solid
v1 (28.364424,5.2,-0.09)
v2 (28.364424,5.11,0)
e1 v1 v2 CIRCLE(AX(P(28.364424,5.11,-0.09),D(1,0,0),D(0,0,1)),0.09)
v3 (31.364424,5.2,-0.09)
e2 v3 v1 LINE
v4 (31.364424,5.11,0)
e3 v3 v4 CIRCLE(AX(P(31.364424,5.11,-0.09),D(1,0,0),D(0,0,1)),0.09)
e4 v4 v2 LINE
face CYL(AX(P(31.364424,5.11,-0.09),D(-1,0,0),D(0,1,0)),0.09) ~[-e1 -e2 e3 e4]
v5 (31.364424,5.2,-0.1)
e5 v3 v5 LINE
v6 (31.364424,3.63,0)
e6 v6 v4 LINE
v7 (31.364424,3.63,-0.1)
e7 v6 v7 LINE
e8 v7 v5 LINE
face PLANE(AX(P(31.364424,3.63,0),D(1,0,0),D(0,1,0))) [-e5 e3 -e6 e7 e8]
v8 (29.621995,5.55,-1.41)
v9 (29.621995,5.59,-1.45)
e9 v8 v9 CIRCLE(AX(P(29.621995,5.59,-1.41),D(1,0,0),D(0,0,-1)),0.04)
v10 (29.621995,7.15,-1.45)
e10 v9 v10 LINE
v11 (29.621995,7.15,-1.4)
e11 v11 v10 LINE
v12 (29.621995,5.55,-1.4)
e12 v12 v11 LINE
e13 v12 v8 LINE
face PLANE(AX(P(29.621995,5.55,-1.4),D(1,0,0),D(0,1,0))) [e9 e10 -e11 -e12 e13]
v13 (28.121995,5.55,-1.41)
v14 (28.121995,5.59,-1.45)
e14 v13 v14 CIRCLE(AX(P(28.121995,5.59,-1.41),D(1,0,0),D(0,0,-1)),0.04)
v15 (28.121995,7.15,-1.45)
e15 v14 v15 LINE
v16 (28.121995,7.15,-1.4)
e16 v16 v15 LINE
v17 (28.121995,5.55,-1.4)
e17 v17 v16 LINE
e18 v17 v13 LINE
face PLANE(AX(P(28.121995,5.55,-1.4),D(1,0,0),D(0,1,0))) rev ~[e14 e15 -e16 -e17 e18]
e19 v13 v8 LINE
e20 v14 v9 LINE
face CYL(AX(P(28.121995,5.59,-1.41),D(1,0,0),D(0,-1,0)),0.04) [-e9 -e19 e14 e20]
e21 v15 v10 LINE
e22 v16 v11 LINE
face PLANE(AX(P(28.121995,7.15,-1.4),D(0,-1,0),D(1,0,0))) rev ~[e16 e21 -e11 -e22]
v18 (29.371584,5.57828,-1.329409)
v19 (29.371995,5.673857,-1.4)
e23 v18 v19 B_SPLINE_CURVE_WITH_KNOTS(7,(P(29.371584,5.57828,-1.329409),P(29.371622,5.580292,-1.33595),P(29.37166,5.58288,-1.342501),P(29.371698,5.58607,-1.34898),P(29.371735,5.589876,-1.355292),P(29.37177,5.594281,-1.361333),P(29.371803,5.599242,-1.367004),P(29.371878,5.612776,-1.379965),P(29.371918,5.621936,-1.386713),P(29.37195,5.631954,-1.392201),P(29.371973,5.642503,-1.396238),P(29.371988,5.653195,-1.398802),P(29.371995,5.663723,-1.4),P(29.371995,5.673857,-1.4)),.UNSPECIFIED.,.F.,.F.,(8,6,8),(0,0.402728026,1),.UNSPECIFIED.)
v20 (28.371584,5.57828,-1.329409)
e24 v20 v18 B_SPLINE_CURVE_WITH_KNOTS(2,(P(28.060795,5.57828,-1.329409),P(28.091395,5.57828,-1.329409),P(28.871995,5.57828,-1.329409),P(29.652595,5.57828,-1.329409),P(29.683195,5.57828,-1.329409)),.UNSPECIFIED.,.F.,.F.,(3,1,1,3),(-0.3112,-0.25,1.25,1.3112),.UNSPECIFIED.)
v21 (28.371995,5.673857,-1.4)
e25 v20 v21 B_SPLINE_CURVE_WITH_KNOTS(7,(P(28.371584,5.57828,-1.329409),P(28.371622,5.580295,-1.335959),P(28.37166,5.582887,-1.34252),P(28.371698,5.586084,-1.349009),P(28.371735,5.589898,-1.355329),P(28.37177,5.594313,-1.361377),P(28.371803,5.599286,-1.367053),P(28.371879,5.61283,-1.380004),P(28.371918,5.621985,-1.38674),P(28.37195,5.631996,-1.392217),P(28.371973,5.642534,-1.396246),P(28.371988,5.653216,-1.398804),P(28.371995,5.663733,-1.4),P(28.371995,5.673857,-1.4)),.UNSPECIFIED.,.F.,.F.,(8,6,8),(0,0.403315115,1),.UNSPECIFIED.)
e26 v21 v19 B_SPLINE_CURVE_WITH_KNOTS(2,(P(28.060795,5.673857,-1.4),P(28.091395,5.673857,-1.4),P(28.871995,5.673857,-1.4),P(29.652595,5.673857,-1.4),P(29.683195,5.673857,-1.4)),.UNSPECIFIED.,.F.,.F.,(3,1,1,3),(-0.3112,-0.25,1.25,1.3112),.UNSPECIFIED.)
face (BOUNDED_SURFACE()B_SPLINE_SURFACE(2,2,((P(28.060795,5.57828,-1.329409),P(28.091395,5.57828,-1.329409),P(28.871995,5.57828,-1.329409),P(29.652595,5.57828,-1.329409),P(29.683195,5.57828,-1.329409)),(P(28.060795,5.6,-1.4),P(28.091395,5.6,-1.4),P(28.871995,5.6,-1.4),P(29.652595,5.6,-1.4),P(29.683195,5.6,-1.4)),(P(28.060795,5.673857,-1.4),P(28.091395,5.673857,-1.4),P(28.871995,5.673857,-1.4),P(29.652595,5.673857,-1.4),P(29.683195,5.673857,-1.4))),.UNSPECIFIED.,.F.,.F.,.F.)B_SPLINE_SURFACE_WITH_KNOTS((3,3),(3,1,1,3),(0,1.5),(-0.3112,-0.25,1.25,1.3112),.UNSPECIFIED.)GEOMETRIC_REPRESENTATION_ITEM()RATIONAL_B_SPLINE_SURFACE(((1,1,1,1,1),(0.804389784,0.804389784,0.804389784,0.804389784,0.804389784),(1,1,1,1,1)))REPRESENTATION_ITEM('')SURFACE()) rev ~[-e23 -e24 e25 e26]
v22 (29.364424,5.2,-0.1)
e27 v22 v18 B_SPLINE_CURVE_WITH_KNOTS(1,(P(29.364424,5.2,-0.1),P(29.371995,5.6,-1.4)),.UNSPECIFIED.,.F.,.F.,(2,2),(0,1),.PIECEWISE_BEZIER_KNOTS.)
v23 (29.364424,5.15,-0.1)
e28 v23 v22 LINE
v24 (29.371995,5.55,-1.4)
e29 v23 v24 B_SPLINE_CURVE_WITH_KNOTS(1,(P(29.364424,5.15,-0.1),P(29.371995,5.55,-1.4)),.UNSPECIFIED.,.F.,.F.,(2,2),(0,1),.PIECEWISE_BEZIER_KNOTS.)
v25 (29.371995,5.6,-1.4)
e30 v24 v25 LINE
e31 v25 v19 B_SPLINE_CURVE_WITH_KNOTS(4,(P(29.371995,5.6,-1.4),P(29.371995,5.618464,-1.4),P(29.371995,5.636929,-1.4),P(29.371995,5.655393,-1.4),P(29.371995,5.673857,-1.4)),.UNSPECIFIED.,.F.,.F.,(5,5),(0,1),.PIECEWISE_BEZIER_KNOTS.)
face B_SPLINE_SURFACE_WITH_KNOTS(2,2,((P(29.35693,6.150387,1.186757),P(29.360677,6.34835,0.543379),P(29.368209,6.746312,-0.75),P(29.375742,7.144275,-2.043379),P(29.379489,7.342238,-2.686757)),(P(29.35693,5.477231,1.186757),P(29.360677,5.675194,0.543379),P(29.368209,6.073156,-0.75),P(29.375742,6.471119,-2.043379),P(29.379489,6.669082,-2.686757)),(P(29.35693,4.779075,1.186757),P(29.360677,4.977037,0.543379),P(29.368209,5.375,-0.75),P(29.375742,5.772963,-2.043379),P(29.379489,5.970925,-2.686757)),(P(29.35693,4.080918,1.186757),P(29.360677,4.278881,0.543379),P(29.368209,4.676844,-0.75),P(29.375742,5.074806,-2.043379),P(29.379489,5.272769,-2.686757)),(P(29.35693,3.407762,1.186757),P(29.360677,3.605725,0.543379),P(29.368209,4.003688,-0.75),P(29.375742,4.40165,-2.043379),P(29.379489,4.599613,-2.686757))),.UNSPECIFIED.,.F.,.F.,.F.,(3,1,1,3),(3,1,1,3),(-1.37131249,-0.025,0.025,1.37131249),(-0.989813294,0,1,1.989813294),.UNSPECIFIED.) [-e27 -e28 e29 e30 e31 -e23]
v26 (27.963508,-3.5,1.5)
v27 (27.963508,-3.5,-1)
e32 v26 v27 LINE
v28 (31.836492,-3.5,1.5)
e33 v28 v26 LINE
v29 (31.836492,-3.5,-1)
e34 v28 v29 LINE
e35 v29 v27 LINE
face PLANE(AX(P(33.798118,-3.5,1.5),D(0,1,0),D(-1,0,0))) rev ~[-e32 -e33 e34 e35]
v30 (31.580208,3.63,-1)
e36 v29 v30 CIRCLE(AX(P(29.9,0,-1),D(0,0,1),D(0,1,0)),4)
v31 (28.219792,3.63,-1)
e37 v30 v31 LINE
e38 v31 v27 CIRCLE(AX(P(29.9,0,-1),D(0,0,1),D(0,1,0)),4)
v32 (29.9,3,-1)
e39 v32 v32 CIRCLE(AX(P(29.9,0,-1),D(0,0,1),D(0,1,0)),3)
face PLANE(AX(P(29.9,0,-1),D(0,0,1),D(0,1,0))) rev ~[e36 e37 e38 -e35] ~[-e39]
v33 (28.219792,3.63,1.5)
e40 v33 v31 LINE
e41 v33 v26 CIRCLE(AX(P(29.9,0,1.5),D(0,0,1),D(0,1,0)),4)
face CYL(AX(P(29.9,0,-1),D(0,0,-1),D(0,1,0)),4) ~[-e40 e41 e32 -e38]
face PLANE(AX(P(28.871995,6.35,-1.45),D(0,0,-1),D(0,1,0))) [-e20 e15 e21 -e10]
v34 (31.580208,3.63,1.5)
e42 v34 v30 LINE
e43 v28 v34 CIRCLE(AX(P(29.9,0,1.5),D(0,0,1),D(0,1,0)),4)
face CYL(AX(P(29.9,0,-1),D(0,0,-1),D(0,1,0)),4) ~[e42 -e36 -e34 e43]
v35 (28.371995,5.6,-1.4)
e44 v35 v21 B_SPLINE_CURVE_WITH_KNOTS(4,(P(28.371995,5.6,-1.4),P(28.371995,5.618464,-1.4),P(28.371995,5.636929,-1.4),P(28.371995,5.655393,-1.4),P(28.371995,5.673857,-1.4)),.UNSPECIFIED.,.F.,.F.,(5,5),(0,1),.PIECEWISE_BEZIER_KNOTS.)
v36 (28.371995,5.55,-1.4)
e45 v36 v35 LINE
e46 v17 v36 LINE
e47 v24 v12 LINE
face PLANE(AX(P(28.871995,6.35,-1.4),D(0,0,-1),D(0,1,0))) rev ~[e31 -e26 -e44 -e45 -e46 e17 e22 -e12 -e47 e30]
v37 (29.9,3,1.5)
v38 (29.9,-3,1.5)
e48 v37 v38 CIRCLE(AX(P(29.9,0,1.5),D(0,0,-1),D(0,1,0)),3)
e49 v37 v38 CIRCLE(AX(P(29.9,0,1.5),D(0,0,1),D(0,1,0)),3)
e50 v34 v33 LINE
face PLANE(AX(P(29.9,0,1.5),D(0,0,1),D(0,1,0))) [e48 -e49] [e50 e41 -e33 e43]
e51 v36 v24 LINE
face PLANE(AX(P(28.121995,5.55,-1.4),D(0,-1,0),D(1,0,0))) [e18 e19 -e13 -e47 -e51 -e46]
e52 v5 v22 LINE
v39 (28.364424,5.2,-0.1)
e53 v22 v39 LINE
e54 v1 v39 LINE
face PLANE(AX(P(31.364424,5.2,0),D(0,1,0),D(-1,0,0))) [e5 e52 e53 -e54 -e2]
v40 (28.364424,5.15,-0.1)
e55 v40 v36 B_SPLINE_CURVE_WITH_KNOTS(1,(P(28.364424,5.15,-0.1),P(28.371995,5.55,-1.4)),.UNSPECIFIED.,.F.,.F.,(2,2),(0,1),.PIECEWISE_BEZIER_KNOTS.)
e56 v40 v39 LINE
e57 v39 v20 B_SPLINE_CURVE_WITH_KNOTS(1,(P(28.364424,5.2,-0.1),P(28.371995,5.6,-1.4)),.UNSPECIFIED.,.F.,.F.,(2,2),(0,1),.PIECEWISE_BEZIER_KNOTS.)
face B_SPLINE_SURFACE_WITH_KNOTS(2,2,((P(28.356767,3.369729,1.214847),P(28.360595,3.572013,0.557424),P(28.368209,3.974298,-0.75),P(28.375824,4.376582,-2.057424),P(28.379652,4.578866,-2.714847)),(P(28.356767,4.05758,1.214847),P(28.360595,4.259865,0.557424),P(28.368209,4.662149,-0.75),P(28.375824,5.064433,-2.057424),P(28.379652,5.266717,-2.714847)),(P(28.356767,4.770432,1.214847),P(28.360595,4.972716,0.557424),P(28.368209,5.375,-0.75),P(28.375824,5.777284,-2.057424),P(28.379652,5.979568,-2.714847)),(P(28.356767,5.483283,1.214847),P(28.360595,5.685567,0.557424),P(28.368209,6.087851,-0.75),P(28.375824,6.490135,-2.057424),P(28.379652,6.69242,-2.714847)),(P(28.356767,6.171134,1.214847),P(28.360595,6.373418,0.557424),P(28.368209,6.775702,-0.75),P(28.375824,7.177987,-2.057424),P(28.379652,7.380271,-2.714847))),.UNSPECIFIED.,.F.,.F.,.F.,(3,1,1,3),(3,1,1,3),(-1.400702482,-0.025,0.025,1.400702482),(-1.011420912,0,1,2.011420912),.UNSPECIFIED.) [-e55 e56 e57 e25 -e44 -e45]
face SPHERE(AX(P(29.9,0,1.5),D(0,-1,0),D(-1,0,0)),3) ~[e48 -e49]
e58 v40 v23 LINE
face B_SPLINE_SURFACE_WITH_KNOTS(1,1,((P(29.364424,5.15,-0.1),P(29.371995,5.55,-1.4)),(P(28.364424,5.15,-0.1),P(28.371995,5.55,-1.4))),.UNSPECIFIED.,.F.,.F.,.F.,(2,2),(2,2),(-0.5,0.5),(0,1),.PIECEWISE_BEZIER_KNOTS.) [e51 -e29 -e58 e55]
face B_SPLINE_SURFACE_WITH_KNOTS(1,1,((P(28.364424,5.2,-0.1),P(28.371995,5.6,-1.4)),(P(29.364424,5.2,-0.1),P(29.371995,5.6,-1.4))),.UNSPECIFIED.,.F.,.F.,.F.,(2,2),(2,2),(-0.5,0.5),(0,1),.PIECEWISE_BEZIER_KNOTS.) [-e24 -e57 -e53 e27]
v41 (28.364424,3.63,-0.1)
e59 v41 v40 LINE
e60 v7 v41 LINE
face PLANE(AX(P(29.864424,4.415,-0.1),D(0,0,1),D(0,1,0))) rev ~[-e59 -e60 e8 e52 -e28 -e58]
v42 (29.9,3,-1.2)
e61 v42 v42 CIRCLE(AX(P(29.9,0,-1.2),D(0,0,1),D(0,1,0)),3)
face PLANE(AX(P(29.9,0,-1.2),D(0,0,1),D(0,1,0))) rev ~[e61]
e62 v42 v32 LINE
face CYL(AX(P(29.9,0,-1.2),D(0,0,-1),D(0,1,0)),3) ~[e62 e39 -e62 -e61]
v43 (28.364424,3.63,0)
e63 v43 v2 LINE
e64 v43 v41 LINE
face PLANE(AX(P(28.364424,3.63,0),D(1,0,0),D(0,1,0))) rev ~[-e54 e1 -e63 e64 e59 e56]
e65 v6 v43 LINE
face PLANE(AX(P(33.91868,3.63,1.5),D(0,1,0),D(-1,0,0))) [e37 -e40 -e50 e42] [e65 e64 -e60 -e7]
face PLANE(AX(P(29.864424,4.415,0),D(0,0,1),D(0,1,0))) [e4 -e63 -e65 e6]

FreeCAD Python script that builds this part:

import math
import FreeCAD as App
import Part
import Sketcher


def edges_at(feature, points):
    """Names of the edges that pass closest to the given points."""
    edges = feature.Shape.Edges
    near = lambda p: min(range(len(edges)), key=lambda i: edges[i].distToShape(Part.Vertex(*p))[0])
    return sorted({f"Edge{near(p) + 1}" for p in points})

doc = App.newDocument("Part")
body = doc.addObject("PartDesign::Body", "Body")

sketch1 = body.newObject("Sketcher::SketchObject", "Sketch")
sketch1.AttachmentSupport = (doc.getObject("XY_Plane"), [""])
sketch1.MapMode = "FlatFace"
sketch1.addGeometry(Part.LineSegment(App.Vector(3.6, 1.5, 0), App.Vector(3.6, -1.5, 0)), False)
sketch1.addGeometry(Part.LineSegment(App.Vector(3.6, -1.5, 0), App.Vector(5.2, -1.5, 0)), False)
sketch1.addGeometry(Part.LineSegment(App.Vector(5.2, -1.5, 0), App.Vector(5.2, 1.5, 0)), False)
sketch1.addGeometry(Part.LineSegment(App.Vector(5.2, 1.5, 0), App.Vector(3.6, 1.5, 0)), False)
sketch1.addConstraint(Sketcher.Constraint("Coincident", 0, 2, 1, 1))
sketch1.addConstraint(Sketcher.Constraint("Coincident", 1, 2, 2, 1))
sketch1.addConstraint(Sketcher.Constraint("Coincident", 2, 2, 3, 1))
sketch1.addConstraint(Sketcher.Constraint("Coincident", 3, 2, 0, 1))
sketch1.addConstraint(Sketcher.Constraint("Vertical", 0))
sketch1.addConstraint(Sketcher.Constraint("Horizontal", 1))
sketch1.addConstraint(Sketcher.Constraint("Vertical", 2))
sketch1.addConstraint(Sketcher.Constraint("Horizontal", 3))
sketch1.addConstraint(Sketcher.Constraint("DistanceY", 0, 2, 0, 1, 3.0))
sketch1.addConstraint(Sketcher.Constraint("DistanceX", 1, 1, 1, 2, 1.57))
sketch1.addConstraint(Sketcher.Constraint("DistanceX", -1, 1, 1, 2, 5.2))
sketch1.addConstraint(Sketcher.Constraint("DistanceY", 0, 2, -1, 1, 1.464424))
pad1 = body.newObject("PartDesign::Pad", "Pad")
pad1.Profile = sketch1
pad1.Length = 0.1
pad1.Reversed = True

sketch2 = body.newObject("Sketcher::SketchObject", "Sketch001")
sketch2.AttachmentSupport = (doc.getObject("XY_Plane"), [""])
sketch2.MapMode = "FlatFace"
sketch2.AttachmentOffset = App.Placement(App.Vector(0, 0, -0.1), App.Rotation())
sketch2.addGeometry(Part.LineSegment(App.Vector(5.15, 0.536, 0), App.Vector(5.15, 1.536, 0)), False)
sketch2.addGeometry(Part.LineSegment(App.Vector(5.15, 1.536, 0), App.Vector(5.2, 1.536, 0)), False)
sketch2.addGeometry(Part.LineSegment(App.Vector(5.2, 1.536, 0), App.Vector(5.2, 0.536, 0)), False)
sketch2.addGeometry(Part.LineSegment(App.Vector(5.2, 0.536, 0), App.Vector(5.15, 0.536, 0)), False)
sketch2.addConstraint(Sketcher.Constraint("Coincident", 0, 2, 1, 1))
sketch2.addConstraint(Sketcher.Constraint("Coincident", 1, 2, 2, 1))
sketch2.addConstraint(Sketcher.Constraint("Coincident", 2, 2, 3, 1))
sketch2.addConstraint(Sketcher.Constraint("Coincident", 3, 2, 0, 1))
sketch2.addConstraint(Sketcher.Constraint("Vertical", 0))
sketch2.addConstraint(Sketcher.Constraint("Horizontal", 1))
sketch2.addConstraint(Sketcher.Constraint("Vertical", 2))
sketch2.addConstraint(Sketcher.Constraint("Horizontal", 3))
sketch2.addConstraint(Sketcher.Constraint("DistanceY", 0, 1, 0, 2, 1.0))
sketch2.addConstraint(Sketcher.Constraint("DistanceX", 1, 1, 1, 2, 0.05))
sketch2.addConstraint(Sketcher.Constraint("DistanceX", -1, 1, 1, 2, 5.2))
sketch2.addConstraint(Sketcher.Constraint("DistanceY", -1, 1, 0, 2, 1.535576))

sketch3 = body.newObject("Sketcher::SketchObject", "Sketch002")
sketch3.AttachmentSupport = (doc.getObject("XY_Plane"), [""])
sketch3.MapMode = "FlatFace"
sketch3.AttachmentOffset = App.Placement(App.Vector(0, 0, -1.4), App.Rotation())
sketch3.addGeometry(Part.LineSegment(App.Vector(5.55, 0.528, 0), App.Vector(5.55, 1.528, 0)), False)
sketch3.addGeometry(Part.LineSegment(App.Vector(5.55, 1.528, 0), App.Vector(5.6, 1.528, 0)), False)
sketch3.addGeometry(Part.LineSegment(App.Vector(5.6, 1.528, 0), App.Vector(5.6, 0.528, 0)), False)
sketch3.addGeometry(Part.LineSegment(App.Vector(5.6, 0.528, 0), App.Vector(5.55, 0.528, 0)), False)
sketch3.addConstraint(Sketcher.Constraint("Coincident", 0, 2, 1, 1))
sketch3.addConstraint(Sketcher.Constraint("Coincident", 1, 2, 2, 1))
sketch3.addConstraint(Sketcher.Constraint("Coincident", 2, 2, 3, 1))
sketch3.addConstraint(Sketcher.Constraint("Coincident", 3, 2, 0, 1))
sketch3.addConstraint(Sketcher.Constraint("Vertical", 0))
sketch3.addConstraint(Sketcher.Constraint("Horizontal", 1))
sketch3.addConstraint(Sketcher.Constraint("Vertical", 2))
sketch3.addConstraint(Sketcher.Constraint("Horizontal", 3))
sketch3.addConstraint(Sketcher.Constraint("DistanceY", 0, 1, 0, 2, 1.0))
sketch3.addConstraint(Sketcher.Constraint("DistanceX", 1, 1, 1, 2, 0.05))
sketch3.addConstraint(Sketcher.Constraint("DistanceX", -1, 1, 1, 2, 5.6))
sketch3.addConstraint(Sketcher.Constraint("DistanceY", -1, 1, 0, 2, 1.528005))

additiveloft = body.newObject("PartDesign::AdditiveLoft", "AdditiveLoft")
additiveloft.Profile = sketch2
additiveloft.Sections = [sketch3]

sketch4 = body.newObject("Sketcher::SketchObject", "Sketch003")
sketch4.AttachmentSupport = (doc.getObject("XY_Plane"), [""])
sketch4.MapMode = "FlatFace"
sketch4.AttachmentOffset = App.Placement(App.Vector(0, 0, -1.4), App.Rotation())
sketch4.addGeometry(Part.LineSegment(App.Vector(5.5, 0.3, 0), App.Vector(5.5, 1.8, 0)), False)
sketch4.addGeometry(Part.LineSegment(App.Vector(5.5, 1.8, 0), App.Vector(7.2, 1.8, 0)), False)
sketch4.addGeometry(Part.LineSegment(App.Vector(7.2, 1.8, 0), App.Vector(7.2, 0.3, 0)), False)
sketch4.addGeometry(Part.LineSegment(App.Vector(7.2, 0.3, 0), App.Vector(5.5, 0.3, 0)), False)
sketch4.addConstraint(Sketcher.Constraint("Coincident", 0, 2, 1, 1))
sketch4.addConstraint(Sketcher.Constraint("Coincident", 1, 2, 2, 1))
sketch4.addConstraint(Sketcher.Constraint("Coincident", 2, 2, 3, 1))
sketch4.addConstraint(Sketcher.Constraint("Coincident", 3, 2, 0, 1))
sketch4.addConstraint(Sketcher.Constraint("Vertical", 0))
sketch4.addConstraint(Sketcher.Constraint("Horizontal", 1))
sketch4.addConstraint(Sketcher.Constraint("Vertical", 2))
sketch4.addConstraint(Sketcher.Constraint("Horizontal", 3))
sketch4.addConstraint(Sketcher.Constraint("DistanceX", 1, 1, 1, 2, 1.6))
sketch4.addConstraint(Sketcher.Constraint("DistanceY", 0, 1, 0, 2, 1.5))
sketch4.addConstraint(Sketcher.Constraint("DistanceX", -1, 1, 0, 2, 5.55))
sketch4.addConstraint(Sketcher.Constraint("DistanceY", -1, 1, 0, 2, 1.778005))
pad2 = body.newObject("PartDesign::Pad", "Pad001")
pad2.Profile = sketch4
pad2.Length = 0.05
pad2.Reversed = True
doc.recompute()

fillet = body.newObject("PartDesign::Fillet", "Fillet")
fillet.Base = (pad2, edges_at(pad2, [(5.2, 0.036, 0)]))
fillet.Radius = 0.09
doc.recompute()

fillet2 = body.newObject("PartDesign::Fillet", "Fillet001")
fillet2.Base = (fillet, edges_at(fillet, [(5.6, 1.028, -1.4)]))
fillet2.Radius = 0.1
doc.recompute()

fillet3 = body.newObject("PartDesign::Fillet", "Fillet002")
fillet3.Base = (fillet2, edges_at(fillet2, [(5.55, 1.028, -1.45)]))
fillet3.Radius = 0.04
body2 = doc.addObject("PartDesign::Body", "Body001")
doc.recompute()

body.Placement = App.Placement(App.Vector(0, 0, 1), App.Rotation(App.Vector(0, 0, 1), 0))
boolean = body2.newObject("PartDesign::Boolean", "Boolean")
boolean.Type = "Fuse"
boolean.addObjects([body])
body3 = doc.addObject("PartDesign::Body", "Body002")

sketch5 = body3.newObject("Sketcher::SketchObject", "Sketch004")
sketch5.AttachmentSupport = (doc.getObject("XY_Plane002"), [""])
sketch5.MapMode = "FlatFace"
sketch5.AttachmentOffset = App.Placement(App.Vector(0, 0, 2.5), App.Rotation())
sketch5.addGeometry(Part.LineSegment(App.Vector(-3, 0, 0), App.Vector(3, 0, 0)), False)
sketch5.addGeometry(Part.ArcOfCircle(Part.Circle(App.Vector(0, 0, 0), App.Vector(0, 0, 1), 3), math.radians(0), math.radians(180)), False)
sketch5.addConstraint(Sketcher.Constraint("Coincident", 0, 1, 1, 2))
sketch5.addConstraint(Sketcher.Constraint("Coincident", 1, 1, 0, 2))
sketch5.addConstraint(Sketcher.Constraint("Horizontal", 0))
sketch5.addConstraint(Sketcher.Constraint("Coincident", 1, 3, -1, 1))
sketch5.addConstraint(Sketcher.Constraint("PointOnObject", 0, 1, -1))
sketch5.addConstraint(Sketcher.Constraint("Radius", 1, 3.0))
revolution = body3.newObject("PartDesign::Revolution", "Revolution")
revolution.Profile = sketch5
revolution.ReferenceAxis = (sketch5, ["H_Axis"])
revolution.Angle = 180
body4 = doc.addObject("PartDesign::Body", "Body003")

sketch6 = body4.newObject("Sketcher::SketchObject", "Sketch005")
sketch6.AttachmentSupport = (doc.getObject("XY_Plane003"), [""])
sketch6.MapMode = "FlatFace"
sketch6.addGeometry(Part.Circle(App.Vector(0, 0, 0), App.Vector(0, 0, 1), 3), False)
sketch6.addConstraint(Sketcher.Constraint("Coincident", 0, 3, -1, 1))
sketch6.addConstraint(Sketcher.Constraint("Diameter", 0, 6.0))
pad3 = body4.newObject("PartDesign::Pad", "Pad002")
pad3.Profile = sketch6
pad3.Length = 0.2
body5 = doc.addObject("PartDesign::Body", "Body004")
doc.recompute()

body4.Placement = App.Placement(App.Vector(0, 0, -0.2), App.Rotation(App.Vector(0, 0, 1), 0))
boolean2 = body5.newObject("PartDesign::Boolean", "Boolean001")
boolean2.Type = "Fuse"
boolean2.addObjects([body4])
body6 = doc.addObject("PartDesign::Body", "Body005")

sketch7 = body6.newObject("Sketcher::SketchObject", "Sketch006")
sketch7.AttachmentSupport = (doc.getObject("XY_Plane005"), [""])
sketch7.MapMode = "FlatFace"
sketch7.addGeometry(Part.Circle(App.Vector(0, 0, 0), App.Vector(0, 0, 1), 4), False)
sketch7.addConstraint(Sketcher.Constraint("Coincident", 0, 3, -1, 1))
sketch7.addConstraint(Sketcher.Constraint("Diameter", 0, 8.0))
pad4 = body6.newObject("PartDesign::Pad", "Pad003")
pad4.Profile = sketch7
pad4.Length = 2.5

sketch8 = body6.newObject("Sketcher::SketchObject", "Sketch007")
sketch8.AttachmentSupport = (doc.getObject("XY_Plane005"), [""])
sketch8.MapMode = "FlatFace"
sketch8.AttachmentOffset = App.Placement(App.Vector(0, 0, 2.5), App.Rotation())
sketch8.addGeometry(Part.LineSegment(App.Vector(3.6, 3.9, 0), App.Vector(3.6, -4, 0)), False)
sketch8.addGeometry(Part.LineSegment(App.Vector(3.6, -4, 0), App.Vector(6.6, -4, 0)), False)
sketch8.addGeometry(Part.LineSegment(App.Vector(6.6, -4, 0), App.Vector(6.6, 3.9, 0)), False)
sketch8.addGeometry(Part.LineSegment(App.Vector(6.6, 3.9, 0), App.Vector(3.6, 3.9, 0)), False)
sketch8.addGeometry(Part.LineSegment(App.Vector(-6.6, 4, 0), App.Vector(-6.6, -3.9, 0)), False)
sketch8.addGeometry(Part.LineSegment(App.Vector(-6.6, -3.9, 0), App.Vector(-3.5, -3.9, 0)), False)
sketch8.addGeometry(Part.LineSegment(App.Vector(-3.5, -3.9, 0), App.Vector(-3.5, 4, 0)), False)
sketch8.addGeometry(Part.LineSegment(App.Vector(-3.5, 4, 0), App.Vector(-6.6, 4, 0)), False)
sketch8.addConstraint(Sketcher.Constraint("Coincident", 0, 2, 1, 1))
sketch8.addConstraint(Sketcher.Constraint("Coincident", 1, 2, 2, 1))
sketch8.addConstraint(Sketcher.Constraint("Coincident", 2, 2, 3, 1))
sketch8.addConstraint(Sketcher.Constraint("Coincident", 3, 2, 0, 1))
sketch8.addConstraint(Sketcher.Constraint("Coincident", 4, 2, 5, 1))
sketch8.addConstraint(Sketcher.Constraint("Coincident", 5, 2, 6, 1))
sketch8.addConstraint(Sketcher.Constraint("Coincident", 6, 2, 7, 1))
sketch8.addConstraint(Sketcher.Constraint("Coincident", 7, 2, 4, 1))
sketch8.addConstraint(Sketcher.Constraint("Vertical", 0))
sketch8.addConstraint(Sketcher.Constraint("Horizontal", 1))
sketch8.addConstraint(Sketcher.Constraint("Vertical", 2))
sketch8.addConstraint(Sketcher.Constraint("Horizontal", 3))
sketch8.addConstraint(Sketcher.Constraint("Vertical", 4))
sketch8.addConstraint(Sketcher.Constraint("Horizontal", 5))
sketch8.addConstraint(Sketcher.Constraint("Vertical", 6))
sketch8.addConstraint(Sketcher.Constraint("Horizontal", 7))
sketch8.addConstraint(Sketcher.Constraint("Symmetric", 2, 2, 4, 2, -1, 1))
sketch8.addConstraint(Sketcher.Constraint("Equal", 2, 4))
sketch8.addConstraint(Sketcher.Constraint("DistanceX", 5, 2, -1, 1, 3.5))
sketch8.addConstraint(Sketcher.Constraint("DistanceX", -1, 1, 0, 2, 3.63))
sketch8.addConstraint(Sketcher.Constraint("DistanceX", 1, 1, 1, 2, 2.920448))
sketch8.addConstraint(Sketcher.Constraint("DistanceY", 0, 2, 0, 1, 7.916798))
sketch8.addConstraint(Sketcher.Constraint("DistanceY", 0, 2, -1, 1, 4.01868))
pocket1 = body6.newObject("PartDesign::Pocket", "Pocket")
pocket1.Profile = sketch8
pocket1.Type = "ThroughAll"
doc.recompute()

boolean3 = body6.newObject("PartDesign::Boolean", "Boolean002")
boolean3.Type = "Fuse"
boolean3.addObjects([body2])
doc.recompute()

boolean4 = body6.newObject("PartDesign::Boolean", "Boolean003")
boolean4.Type = "Fuse"
boolean4.addObjects([body3])
doc.recompute()

boolean5 = body6.newObject("PartDesign::Boolean", "Boolean004")
boolean5.Type = "Fuse"
boolean5.addObjects([body5])
body7 = doc.addObject("PartDesign::Body", "Body006")
doc.recompute()

body6.Placement = App.Placement(App.Vector(9.2, 28.5, -1), App.Rotation(App.Vector(0, 0, 1), 0))
boolean6 = body7.newObject("PartDesign::Boolean", "Boolean005")
boolean6.Type = "Fuse"
boolean6.addObjects([body6])
body8 = doc.addObject("PartDesign::Body", "Body007")
doc.recompute()

body7.Placement = App.Placement(App.Vector(58.4, -9.2, 0), App.Rotation(App.Vector(0, 0, 1), 90))
boolean7 = body8.newObject("PartDesign::Boolean", "Boolean006")
boolean7.Type = "Fuse"
boolean7.addObjects([body7])

doc.recompute()
